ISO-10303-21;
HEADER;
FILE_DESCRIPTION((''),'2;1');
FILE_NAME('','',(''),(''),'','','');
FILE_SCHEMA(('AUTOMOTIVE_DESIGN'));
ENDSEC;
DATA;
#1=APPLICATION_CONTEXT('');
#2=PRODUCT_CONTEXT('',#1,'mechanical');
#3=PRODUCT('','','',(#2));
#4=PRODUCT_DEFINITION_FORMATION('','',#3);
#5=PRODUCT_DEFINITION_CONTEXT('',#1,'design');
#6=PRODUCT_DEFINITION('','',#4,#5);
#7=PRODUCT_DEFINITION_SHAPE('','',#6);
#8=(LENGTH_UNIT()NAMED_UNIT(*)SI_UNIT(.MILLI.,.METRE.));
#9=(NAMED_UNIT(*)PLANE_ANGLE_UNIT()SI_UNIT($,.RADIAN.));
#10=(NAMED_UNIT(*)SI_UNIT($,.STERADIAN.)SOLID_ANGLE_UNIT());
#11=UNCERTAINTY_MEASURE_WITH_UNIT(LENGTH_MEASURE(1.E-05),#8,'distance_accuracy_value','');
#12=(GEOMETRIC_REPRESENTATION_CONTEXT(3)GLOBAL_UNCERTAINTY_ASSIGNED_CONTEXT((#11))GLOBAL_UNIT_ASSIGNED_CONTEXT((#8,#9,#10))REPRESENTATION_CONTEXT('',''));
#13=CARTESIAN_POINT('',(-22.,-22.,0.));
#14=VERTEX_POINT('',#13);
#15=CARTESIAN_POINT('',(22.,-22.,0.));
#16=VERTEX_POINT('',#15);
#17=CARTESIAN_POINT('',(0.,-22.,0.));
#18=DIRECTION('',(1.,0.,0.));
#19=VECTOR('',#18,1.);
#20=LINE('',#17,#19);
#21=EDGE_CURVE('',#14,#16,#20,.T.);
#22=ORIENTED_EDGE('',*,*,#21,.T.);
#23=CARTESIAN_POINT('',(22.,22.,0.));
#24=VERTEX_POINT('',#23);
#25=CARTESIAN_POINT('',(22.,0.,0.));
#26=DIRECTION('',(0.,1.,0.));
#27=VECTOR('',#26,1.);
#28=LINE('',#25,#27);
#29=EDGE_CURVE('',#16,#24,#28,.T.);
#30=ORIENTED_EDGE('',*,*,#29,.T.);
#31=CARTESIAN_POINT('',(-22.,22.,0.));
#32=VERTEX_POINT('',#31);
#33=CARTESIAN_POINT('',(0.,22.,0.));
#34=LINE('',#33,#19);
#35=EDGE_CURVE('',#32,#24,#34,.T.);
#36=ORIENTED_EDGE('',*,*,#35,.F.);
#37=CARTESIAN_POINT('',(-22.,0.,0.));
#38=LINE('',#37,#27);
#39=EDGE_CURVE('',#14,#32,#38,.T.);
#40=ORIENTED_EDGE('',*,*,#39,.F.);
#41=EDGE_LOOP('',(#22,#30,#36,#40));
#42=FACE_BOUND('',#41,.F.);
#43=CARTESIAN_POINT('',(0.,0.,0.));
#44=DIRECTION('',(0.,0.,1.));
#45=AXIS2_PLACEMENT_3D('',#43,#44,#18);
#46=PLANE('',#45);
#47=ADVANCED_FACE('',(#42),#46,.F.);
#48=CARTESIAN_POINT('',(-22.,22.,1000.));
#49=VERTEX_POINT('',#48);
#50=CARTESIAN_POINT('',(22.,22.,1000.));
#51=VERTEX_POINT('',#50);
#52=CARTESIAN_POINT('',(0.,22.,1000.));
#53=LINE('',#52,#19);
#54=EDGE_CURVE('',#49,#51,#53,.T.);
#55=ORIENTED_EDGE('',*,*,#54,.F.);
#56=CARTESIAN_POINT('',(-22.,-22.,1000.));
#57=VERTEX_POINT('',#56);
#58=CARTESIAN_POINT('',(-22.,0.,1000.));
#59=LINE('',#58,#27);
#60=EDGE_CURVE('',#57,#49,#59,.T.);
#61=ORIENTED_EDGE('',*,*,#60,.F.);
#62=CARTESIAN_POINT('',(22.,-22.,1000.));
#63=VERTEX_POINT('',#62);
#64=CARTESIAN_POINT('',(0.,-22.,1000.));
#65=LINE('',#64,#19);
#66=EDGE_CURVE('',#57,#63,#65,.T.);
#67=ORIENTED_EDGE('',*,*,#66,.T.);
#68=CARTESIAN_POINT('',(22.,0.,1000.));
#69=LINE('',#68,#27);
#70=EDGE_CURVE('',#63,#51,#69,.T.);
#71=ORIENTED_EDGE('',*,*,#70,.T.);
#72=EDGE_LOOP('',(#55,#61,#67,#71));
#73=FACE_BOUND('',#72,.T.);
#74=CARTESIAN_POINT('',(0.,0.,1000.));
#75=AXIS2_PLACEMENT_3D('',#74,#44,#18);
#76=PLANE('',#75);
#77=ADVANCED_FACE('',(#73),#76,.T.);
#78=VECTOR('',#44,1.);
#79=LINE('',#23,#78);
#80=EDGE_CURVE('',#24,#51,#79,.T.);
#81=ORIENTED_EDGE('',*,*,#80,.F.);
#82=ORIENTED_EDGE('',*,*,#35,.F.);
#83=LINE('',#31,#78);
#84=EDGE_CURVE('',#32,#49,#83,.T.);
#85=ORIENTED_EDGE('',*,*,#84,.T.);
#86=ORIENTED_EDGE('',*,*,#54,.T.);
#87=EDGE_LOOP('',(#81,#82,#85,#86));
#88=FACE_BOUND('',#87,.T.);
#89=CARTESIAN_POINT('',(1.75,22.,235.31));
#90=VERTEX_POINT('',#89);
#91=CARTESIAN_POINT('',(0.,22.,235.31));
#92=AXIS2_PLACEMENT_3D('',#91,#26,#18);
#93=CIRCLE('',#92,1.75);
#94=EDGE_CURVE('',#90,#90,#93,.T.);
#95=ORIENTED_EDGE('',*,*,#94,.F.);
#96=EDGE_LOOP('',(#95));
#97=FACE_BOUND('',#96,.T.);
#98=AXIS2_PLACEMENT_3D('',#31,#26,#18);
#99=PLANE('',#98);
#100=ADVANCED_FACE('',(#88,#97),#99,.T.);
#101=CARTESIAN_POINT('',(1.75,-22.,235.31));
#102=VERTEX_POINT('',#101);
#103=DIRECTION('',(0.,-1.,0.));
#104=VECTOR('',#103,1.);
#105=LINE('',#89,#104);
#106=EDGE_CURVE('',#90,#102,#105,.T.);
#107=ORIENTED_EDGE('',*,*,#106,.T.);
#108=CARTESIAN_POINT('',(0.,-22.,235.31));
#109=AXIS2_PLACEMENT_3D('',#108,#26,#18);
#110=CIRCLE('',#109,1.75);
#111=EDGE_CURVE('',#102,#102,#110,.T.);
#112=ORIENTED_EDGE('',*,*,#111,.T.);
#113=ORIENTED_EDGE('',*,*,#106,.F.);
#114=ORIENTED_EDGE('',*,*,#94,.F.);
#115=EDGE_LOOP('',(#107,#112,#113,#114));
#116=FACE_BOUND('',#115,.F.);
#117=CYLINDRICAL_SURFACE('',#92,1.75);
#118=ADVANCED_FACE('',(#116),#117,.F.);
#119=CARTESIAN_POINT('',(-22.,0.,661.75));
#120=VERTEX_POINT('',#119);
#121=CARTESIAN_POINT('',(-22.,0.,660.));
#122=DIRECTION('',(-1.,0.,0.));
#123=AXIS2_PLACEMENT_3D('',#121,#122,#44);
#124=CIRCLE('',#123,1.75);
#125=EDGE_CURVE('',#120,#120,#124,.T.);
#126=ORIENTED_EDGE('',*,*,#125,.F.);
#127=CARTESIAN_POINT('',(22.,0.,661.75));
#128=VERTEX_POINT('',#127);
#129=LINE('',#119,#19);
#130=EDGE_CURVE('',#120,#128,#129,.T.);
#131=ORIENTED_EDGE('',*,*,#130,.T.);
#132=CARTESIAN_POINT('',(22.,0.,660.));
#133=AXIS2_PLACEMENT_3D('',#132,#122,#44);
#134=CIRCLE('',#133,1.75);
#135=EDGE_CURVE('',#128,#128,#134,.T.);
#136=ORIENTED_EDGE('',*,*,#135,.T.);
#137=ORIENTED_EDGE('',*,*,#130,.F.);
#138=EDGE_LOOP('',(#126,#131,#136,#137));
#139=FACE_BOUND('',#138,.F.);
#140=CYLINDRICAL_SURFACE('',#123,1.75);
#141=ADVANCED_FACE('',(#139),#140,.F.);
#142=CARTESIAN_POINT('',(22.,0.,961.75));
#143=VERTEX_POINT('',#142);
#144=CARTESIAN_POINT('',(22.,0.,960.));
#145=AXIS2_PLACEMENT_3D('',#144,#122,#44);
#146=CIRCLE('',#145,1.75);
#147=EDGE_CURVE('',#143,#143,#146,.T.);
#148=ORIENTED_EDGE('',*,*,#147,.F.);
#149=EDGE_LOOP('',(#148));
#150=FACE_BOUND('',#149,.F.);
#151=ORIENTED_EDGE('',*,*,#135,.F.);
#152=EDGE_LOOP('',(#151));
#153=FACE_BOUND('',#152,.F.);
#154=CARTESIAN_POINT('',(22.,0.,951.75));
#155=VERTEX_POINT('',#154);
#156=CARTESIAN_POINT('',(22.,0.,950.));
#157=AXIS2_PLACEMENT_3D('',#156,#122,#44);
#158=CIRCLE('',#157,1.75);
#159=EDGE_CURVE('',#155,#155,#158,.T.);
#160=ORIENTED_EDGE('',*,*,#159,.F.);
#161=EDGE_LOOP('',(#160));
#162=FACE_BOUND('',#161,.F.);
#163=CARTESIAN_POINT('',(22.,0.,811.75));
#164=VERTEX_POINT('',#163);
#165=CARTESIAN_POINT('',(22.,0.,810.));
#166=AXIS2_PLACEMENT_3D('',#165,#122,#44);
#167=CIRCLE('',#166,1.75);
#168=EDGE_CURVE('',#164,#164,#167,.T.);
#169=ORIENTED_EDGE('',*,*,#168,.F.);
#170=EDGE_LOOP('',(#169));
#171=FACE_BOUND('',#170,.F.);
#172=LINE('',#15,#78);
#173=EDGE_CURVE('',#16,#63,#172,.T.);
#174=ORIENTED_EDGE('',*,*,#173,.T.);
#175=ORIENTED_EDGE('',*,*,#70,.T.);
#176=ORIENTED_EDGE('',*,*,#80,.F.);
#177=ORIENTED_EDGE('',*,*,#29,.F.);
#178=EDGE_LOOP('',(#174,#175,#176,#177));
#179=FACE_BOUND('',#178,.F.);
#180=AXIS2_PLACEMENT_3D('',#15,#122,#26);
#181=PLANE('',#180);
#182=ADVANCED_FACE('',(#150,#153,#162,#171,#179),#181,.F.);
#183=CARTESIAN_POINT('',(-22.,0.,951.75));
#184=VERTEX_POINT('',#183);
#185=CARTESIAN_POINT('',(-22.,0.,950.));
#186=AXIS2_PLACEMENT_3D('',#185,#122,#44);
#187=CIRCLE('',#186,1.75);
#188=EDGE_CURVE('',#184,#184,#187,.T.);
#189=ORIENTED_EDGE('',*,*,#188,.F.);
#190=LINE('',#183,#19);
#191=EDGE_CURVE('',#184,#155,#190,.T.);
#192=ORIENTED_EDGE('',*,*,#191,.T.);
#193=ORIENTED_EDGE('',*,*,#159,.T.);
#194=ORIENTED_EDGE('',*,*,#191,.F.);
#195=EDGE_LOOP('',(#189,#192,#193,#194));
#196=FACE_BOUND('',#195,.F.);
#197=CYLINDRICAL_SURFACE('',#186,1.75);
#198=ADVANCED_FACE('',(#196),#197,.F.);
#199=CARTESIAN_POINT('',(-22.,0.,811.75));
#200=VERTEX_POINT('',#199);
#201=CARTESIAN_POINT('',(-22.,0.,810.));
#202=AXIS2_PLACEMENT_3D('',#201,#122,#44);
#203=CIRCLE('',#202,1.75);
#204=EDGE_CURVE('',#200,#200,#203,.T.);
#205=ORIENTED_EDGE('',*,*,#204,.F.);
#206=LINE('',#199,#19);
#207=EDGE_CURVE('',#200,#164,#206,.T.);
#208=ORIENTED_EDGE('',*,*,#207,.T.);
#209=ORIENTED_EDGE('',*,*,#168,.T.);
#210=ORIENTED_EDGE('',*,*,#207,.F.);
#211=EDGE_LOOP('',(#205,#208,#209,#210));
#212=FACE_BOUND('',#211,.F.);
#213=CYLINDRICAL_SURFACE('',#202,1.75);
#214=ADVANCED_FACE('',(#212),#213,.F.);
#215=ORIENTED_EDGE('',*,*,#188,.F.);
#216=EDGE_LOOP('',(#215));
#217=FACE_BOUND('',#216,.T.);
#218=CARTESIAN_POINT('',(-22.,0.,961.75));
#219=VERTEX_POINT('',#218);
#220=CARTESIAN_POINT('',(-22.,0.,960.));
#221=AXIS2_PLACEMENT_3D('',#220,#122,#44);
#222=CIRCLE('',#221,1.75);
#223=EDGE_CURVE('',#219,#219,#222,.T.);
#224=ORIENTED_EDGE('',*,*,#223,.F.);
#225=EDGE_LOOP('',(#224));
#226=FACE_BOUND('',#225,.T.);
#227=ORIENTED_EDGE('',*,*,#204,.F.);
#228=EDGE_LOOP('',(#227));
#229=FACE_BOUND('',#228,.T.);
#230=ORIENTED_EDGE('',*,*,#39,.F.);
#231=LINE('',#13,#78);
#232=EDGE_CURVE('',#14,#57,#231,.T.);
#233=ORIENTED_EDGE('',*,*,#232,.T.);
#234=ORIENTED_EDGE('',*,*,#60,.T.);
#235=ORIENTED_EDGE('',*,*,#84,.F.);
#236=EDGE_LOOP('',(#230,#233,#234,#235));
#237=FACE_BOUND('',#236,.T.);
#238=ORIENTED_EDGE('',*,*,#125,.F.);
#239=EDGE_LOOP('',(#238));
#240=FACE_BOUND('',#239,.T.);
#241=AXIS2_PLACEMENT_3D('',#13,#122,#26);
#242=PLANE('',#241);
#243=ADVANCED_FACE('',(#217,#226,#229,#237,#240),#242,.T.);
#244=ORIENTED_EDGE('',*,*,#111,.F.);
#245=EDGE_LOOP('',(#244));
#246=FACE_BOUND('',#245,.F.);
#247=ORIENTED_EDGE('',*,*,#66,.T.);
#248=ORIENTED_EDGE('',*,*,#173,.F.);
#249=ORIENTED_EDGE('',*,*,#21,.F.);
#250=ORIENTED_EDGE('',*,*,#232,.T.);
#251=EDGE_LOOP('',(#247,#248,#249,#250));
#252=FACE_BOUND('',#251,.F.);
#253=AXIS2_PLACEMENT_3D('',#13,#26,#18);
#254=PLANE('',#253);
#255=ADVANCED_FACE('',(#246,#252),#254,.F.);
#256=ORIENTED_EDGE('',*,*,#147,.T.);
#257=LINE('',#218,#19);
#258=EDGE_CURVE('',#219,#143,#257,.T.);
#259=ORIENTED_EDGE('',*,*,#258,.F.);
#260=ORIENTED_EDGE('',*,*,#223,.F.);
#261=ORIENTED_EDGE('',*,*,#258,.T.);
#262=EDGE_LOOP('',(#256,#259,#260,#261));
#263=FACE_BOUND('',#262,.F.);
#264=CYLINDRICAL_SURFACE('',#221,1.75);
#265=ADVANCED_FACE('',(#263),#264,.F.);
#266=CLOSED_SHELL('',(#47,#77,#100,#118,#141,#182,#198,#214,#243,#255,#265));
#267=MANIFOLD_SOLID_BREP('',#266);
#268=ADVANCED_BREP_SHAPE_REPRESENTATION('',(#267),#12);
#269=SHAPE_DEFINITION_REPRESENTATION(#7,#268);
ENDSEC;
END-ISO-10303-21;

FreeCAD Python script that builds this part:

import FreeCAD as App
import Part
import Sketcher

V = App.Vector

doc = App.newDocument("Part")
params = doc.addObject("Spreadsheet::Sheet", "Params")
for row, (alias, value) in enumerate([
    ("sketch1_width", "44 mm"),
    ("pad1_length", "1000 mm"),
    ("sketch2_diameter", "3.5 mm"),
    ("pocket1_length", "44 mm"),
    ("sketch3_diameter", "3.5 mm"),
    ("pocket2_length", "44 mm"),
], start=1):
    params.set(f"A{row}", alias)
    params.set(f"B{row}", "=" + value)
    params.setAlias(f"B{row}", alias)

body = doc.addObject("PartDesign::Body", "Body")

# Sketch on XY plane
sketch1 = body.newObject("Sketcher::SketchObject", "Sketch")
sketch1.AttachmentSupport = (doc.getObject("XY_Plane"), [""])
sketch1.MapMode = "FlatFace"
sketch1.addGeometry(Part.LineSegment(V(-22, 22, 0), V(-22, -22, 0)), False)
sketch1.addGeometry(Part.LineSegment(V(-22, -22, 0), V(22, -22, 0)), False)
sketch1.addGeometry(Part.LineSegment(V(22, -22, 0), V(22, 22, 0)), False)
sketch1.addGeometry(Part.LineSegment(V(22, 22, 0), V(-22, 22, 0)), False)
sketch1.addConstraint(Sketcher.Constraint("Coincident", 0, 2, 1, 1))
sketch1.addConstraint(Sketcher.Constraint("Coincident", 1, 2, 2, 1))
sketch1.addConstraint(Sketcher.Constraint("Coincident", 2, 2, 3, 1))
sketch1.addConstraint(Sketcher.Constraint("Coincident", 3, 2, 0, 1))
sketch1.addConstraint(Sketcher.Constraint("Vertical", 0))
sketch1.addConstraint(Sketcher.Constraint("Horizontal", 1))
sketch1.addConstraint(Sketcher.Constraint("Vertical", 2))
sketch1.addConstraint(Sketcher.Constraint("Horizontal", 3))
sketch1.addConstraint(Sketcher.Constraint("Symmetric", 0, 2, 2, 2, -1, 1))
sketch1.addConstraint(Sketcher.Constraint("Equal", 3, 0))
sketch1.addConstraint(Sketcher.Constraint("DistanceX", 1, 1, 1, 2, 44.0))
sketch1.setExpression("Constraints[10]", "Params.sketch1_width")
pad1 = body.newObject("PartDesign::Pad", "Pad")
pad1.Profile = sketch1
pad1.setExpression("Length", "Params.pad1_length")

# Sketch on YZ plane
sketch2 = body.newObject("Sketcher::SketchObject", "Sketch001")
sketch2.AttachmentSupport = (doc.getObject("YZ_Plane"), [""])
sketch2.MapMode = "FlatFace"
sketch2.AttachmentOffset = App.Placement(V(0, 0, -22), App.Rotation())
sketch2.addGeometry(Part.Circle(V(0, 950, 0), V(0, 0, 1), 1.8), False)
sketch2.addGeometry(Part.Circle(V(0, 960, 0), V(0, 0, 1), 1.8), False)
sketch2.addGeometry(Part.Circle(V(0, 810, 0), V(0, 0, 1), 1.8), False)
sketch2.addGeometry(Part.Circle(V(0, 660, 0), V(0, 0, 1), 1.8), False)
sketch2.addConstraint(Sketcher.Constraint("Equal", 0, 1))
sketch2.addConstraint(Sketcher.Constraint("Equal", 1, 2))
sketch2.addConstraint(Sketcher.Constraint("Equal", 2, 3))
sketch2.addConstraint(Sketcher.Constraint("PointOnObject", 0, 3, -2))
sketch2.addConstraint(Sketcher.Constraint("PointOnObject", 1, 3, -2))
sketch2.addConstraint(Sketcher.Constraint("PointOnObject", 2, 3, -2))
sketch2.addConstraint(Sketcher.Constraint("PointOnObject", 3, 3, -2))
sketch2.addConstraint(Sketcher.Constraint("Diameter", 0, 3.5))
sketch2.addConstraint(Sketcher.Constraint("DistanceY", -1, 1, 0, 3, 950.0))
sketch2.addConstraint(Sketcher.Constraint("DistanceY", -1, 1, 1, 3, 960.0))
sketch2.addConstraint(Sketcher.Constraint("DistanceY", -1, 1, 2, 3, 810.0))
sketch2.addConstraint(Sketcher.Constraint("DistanceY", -1, 1, 3, 3, 660.0))
sketch2.setExpression("Constraints[7]", "Params.sketch2_diameter")
pocket1 = body.newObject("PartDesign::Pocket", "Pocket")
pocket1.Profile = sketch2
pocket1.setExpression("Length", "Params.pocket1_length")
pocket1.Reversed = True

# Sketch on XZ plane
sketch3 = body.newObject("Sketcher::SketchObject", "Sketch002")
sketch3.AttachmentSupport = (doc.getObject("XZ_Plane"), [""])
sketch3.MapMode = "FlatFace"
sketch3.AttachmentOffset = App.Placement(V(0, 0, -22), App.Rotation())
sketch3.addGeometry(Part.Circle(V(0, 235.3, 0), V(0, 0, 1), 1.8), False)
sketch3.addConstraint(Sketcher.Constraint("PointOnObject", 0, 3, -2))
sketch3.addConstraint(Sketcher.Constraint("Diameter", 0, 3.5))
sketch3.addConstraint(Sketcher.Constraint("DistanceY", -1, 1, 0, 3, 235.31))
sketch3.setExpression("Constraints[1]", "Params.sketch3_diameter")
pocket2 = body.newObject("PartDesign::Pocket", "Pocket001")
pocket2.Profile = sketch3
pocket2.setExpression("Length", "Params.pocket2_length")
pocket2.Reversed = True

doc.recompute()
